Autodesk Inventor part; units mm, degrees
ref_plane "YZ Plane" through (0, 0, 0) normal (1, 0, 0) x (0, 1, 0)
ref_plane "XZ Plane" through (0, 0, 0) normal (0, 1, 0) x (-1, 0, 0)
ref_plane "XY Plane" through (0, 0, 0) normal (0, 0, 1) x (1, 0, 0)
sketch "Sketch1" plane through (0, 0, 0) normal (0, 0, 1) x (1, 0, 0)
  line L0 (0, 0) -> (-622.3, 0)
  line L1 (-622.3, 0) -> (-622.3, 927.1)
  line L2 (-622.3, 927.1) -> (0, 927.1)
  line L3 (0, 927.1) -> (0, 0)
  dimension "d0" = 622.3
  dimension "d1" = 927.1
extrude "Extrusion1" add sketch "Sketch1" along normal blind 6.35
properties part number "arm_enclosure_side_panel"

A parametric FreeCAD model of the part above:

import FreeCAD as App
import Part
import Sketcher
Q = App.Units.Quantity

doc = App.newDocument("Part")
body = doc.addObject("PartDesign::Body", "Body")

sketch1 = body.newObject("Sketcher::SketchObject", "Sketch")
sketch1.AttachmentSupport = (doc.getObject("XY_Plane"), [""])
sketch1.MapMode = "FlatFace"
sketch1.addGeometry([
    Part.LineSegment(App.Vector(-622.3, 0, 0), App.Vector(0, 0, 0)),
    Part.LineSegment(App.Vector(0, 0, 0), App.Vector(0, 927.1, 0)),
    Part.LineSegment(App.Vector(0, 927.1, 0), App.Vector(-622.3, 927.1, 0)),
    Part.LineSegment(App.Vector(-622.3, 927.1, 0), App.Vector(-622.3, 0, 0)),
], False)
sketch1.addConstraint([
    Sketcher.Constraint("Coincident", 0, 2, 1, 1),
    Sketcher.Constraint("Coincident", 1, 2, 2, 1),
    Sketcher.Constraint("Coincident", 2, 2, 3, 1),
    Sketcher.Constraint("Coincident", 3, 2, 0, 1),
    Sketcher.Constraint("Horizontal", 0),
    Sketcher.Constraint("Vertical", 1),
    Sketcher.Constraint("Horizontal", 2),
    Sketcher.Constraint("Vertical", 3),
    Sketcher.Constraint("Coincident", 0, 2, -1, 1),
    Sketcher.Constraint("DistanceX", 0, 1, 0, 2, Q("24.5 in")),
    Sketcher.Constraint("DistanceY", 1, 1, 1, 2, Q("36.5 in")),
])
pad1 = body.newObject("PartDesign::Pad", "Pad")
pad1.Profile = sketch1
pad1.Length = Q("0.25 in")

doc.recompute()
